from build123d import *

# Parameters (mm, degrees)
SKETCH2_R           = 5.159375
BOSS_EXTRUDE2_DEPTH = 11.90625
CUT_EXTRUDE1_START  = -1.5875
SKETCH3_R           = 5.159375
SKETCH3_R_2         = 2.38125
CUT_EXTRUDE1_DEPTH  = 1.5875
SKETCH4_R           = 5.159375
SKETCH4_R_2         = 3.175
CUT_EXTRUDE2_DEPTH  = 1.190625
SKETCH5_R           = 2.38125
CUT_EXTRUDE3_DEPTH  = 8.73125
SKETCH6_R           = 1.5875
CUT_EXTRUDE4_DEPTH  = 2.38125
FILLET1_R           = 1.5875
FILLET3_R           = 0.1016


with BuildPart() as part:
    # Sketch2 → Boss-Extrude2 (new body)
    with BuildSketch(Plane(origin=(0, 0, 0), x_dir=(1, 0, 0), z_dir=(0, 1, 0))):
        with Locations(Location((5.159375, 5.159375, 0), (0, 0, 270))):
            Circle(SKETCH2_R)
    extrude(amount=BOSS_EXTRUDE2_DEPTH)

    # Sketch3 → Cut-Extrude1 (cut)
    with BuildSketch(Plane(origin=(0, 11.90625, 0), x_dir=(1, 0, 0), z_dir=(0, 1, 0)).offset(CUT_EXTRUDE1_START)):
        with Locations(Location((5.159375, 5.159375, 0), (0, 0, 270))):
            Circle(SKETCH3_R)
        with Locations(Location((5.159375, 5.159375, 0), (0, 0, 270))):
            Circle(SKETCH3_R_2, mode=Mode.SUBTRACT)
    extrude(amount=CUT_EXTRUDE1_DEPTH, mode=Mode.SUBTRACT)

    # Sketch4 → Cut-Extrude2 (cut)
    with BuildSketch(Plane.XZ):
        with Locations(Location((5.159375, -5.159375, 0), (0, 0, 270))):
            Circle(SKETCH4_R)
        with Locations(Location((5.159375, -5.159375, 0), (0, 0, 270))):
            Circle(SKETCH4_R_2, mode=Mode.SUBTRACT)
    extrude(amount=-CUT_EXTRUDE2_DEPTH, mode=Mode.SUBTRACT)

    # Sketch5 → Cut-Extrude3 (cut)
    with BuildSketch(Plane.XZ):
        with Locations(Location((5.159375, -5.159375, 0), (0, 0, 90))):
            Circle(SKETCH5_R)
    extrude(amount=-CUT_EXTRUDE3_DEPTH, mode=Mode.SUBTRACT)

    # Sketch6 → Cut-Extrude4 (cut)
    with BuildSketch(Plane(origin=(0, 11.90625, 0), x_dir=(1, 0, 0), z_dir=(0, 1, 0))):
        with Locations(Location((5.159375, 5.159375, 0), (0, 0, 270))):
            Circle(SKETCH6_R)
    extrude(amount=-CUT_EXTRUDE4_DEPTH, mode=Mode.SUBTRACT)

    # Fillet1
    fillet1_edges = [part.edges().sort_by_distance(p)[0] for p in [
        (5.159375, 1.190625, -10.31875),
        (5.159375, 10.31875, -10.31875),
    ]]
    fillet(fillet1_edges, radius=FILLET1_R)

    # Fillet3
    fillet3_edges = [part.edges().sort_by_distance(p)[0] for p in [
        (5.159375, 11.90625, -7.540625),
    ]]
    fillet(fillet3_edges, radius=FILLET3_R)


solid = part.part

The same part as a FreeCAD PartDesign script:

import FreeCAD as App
import Part
import Sketcher
from FreeCAD import Vector
Q = App.Units.Quantity


def edges_at(feature, points):
    """Names of the edges that pass closest to the given points."""
    edges = feature.Shape.Edges
    near = lambda p: min(range(len(edges)), key=lambda i: edges[i].distToShape(Part.Vertex(*p))[0])
    return sorted({f"Edge{near(p) + 1}" for p in points})

doc = App.newDocument("Part")
body = doc.addObject("PartDesign::Body", "Body")

# Sketch on XZ plane
sketch1 = body.newObject("Sketcher::SketchObject", "Sketch")
sketch1.AttachmentSupport = (doc.getObject("XZ_Plane"), [""])
sketch1.MapMode = "FlatFace"
sketch1.addGeometry(Part.Circle(Vector(5.159375, -5.159375, 0), Vector(0, 0, 1), 5.159375), False)
sketch1.addConstraint(Sketcher.Constraint("Diameter", 0, Q("0.40625 in")))
sketch1.addConstraint(Sketcher.Constraint("DistanceX", -1, 1, 0, 3, Q("0.203125 in")))
sketch1.addConstraint(Sketcher.Constraint("DistanceY", 0, 3, -1, 1, Q("0.203125 in")))
pad1 = body.newObject("PartDesign::Pad", "Pad")
pad1.Profile = sketch1
pad1.Length = Q("0.46875 in")
pad1.Reversed = True

# Sketch on XZ plane
sketch2 = body.newObject("Sketcher::SketchObject", "Sketch001")
sketch2.AttachmentSupport = (doc.getObject("XZ_Plane"), [""])
sketch2.MapMode = "FlatFace"
sketch2.AttachmentOffset = App.Placement(Vector(0, 0, -0.40625 * 25.4), App.Rotation())
sketch2.addGeometry(Part.Circle(Vector(5.159375, -5.159375, 0), Vector(0, 0, 1), 5.159375), False)
sketch2.addGeometry(Part.Circle(Vector(5.159375, -5.159375, 0), Vector(0, 0, 1), 2.38125), False)
sketch2.addConstraint(Sketcher.Constraint("Coincident", 1, 3, 0, 3))
sketch2.addConstraint(Sketcher.Constraint("Diameter", 0, Q("0.40625 in")))
sketch2.addConstraint(Sketcher.Constraint("Diameter", 1, Q("0.1875 in")))
sketch2.addConstraint(Sketcher.Constraint("DistanceX", -1, 1, 0, 3, Q("0.203125 in")))
sketch2.addConstraint(Sketcher.Constraint("DistanceY", 0, 3, -1, 1, Q("0.203125 in")))
pocket1 = body.newObject("PartDesign::Pocket", "Pocket")
pocket1.Profile = sketch2
pocket1.Length = Q("0.0625 in")

# Sketch on XZ plane
sketch3 = body.newObject("Sketcher::SketchObject", "Sketch002")
sketch3.AttachmentSupport = (doc.getObject("XZ_Plane"), [""])
sketch3.MapMode = "FlatFace"
sketch3.addGeometry(Part.Circle(Vector(5.159375, -5.159375, 0), Vector(0, 0, 1), 5.159375), False)
sketch3.addGeometry(Part.Circle(Vector(5.159375, -5.159375, 0), Vector(0, 0, 1), 3.175), False)
sketch3.addConstraint(Sketcher.Constraint("Coincident", 1, 3, 0, 3))
sketch3.addConstraint(Sketcher.Constraint("Diameter", 1, Q("0.25 in")))
sketch3.addConstraint(Sketcher.Constraint("Diameter", 0, Q("0.40625 in")))
sketch3.addConstraint(Sketcher.Constraint("DistanceX", -1, 1, 0, 3, Q("0.203125 in")))
sketch3.addConstraint(Sketcher.Constraint("DistanceY", 0, 3, -1, 1, Q("0.203125 in")))
pocket2 = body.newObject("PartDesign::Pocket", "Pocket001")
pocket2.Profile = sketch3
pocket2.Length = Q("0.046875 in")

# Sketch on XZ plane
sketch4 = body.newObject("Sketcher::SketchObject", "Sketch003")
sketch4.AttachmentSupport = (doc.getObject("XZ_Plane"), [""])
sketch4.MapMode = "FlatFace"
sketch4.addGeometry(Part.Circle(Vector(5.159375, -5.159375, 0), Vector(0, 0, 1), 2.38125), False)
sketch4.addConstraint(Sketcher.Constraint("Diameter", 0, Q("0.1875 in")))
sketch4.addConstraint(Sketcher.Constraint("DistanceX", -1, 1, 0, 3, Q("0.203125 in")))
sketch4.addConstraint(Sketcher.Constraint("DistanceY", 0, 3, -1, 1, Q("0.203125 in")))
pocket3 = body.newObject("PartDesign::Pocket", "Pocket002")
pocket3.Profile = sketch4
pocket3.Length = Q("0.34375 in")

# Sketch on XZ plane
sketch5 = body.newObject("Sketcher::SketchObject", "Sketch004")
sketch5.AttachmentSupport = (doc.getObject("XZ_Plane"), [""])
sketch5.MapMode = "FlatFace"
sketch5.AttachmentOffset = App.Placement(Vector(0, 0, -0.46875 * 25.4), App.Rotation())
sketch5.addGeometry(Part.Circle(Vector(5.159375, -5.159375, 0), Vector(0, 0, 1), 1.5875), False)
sketch5.addConstraint(Sketcher.Constraint("Diameter", 0, Q("0.125 in")))
sketch5.addConstraint(Sketcher.Constraint("DistanceX", -1, 1, 0, 3, Q("0.203125 in")))
sketch5.addConstraint(Sketcher.Constraint("DistanceY", 0, 3, -1, 1, Q("0.203125 in")))
pocket4 = body.newObject("PartDesign::Pocket", "Pocket003")
pocket4.Profile = sketch5
pocket4.Length = Q("0.09375 in")
pocket4.Reversed = True
doc.recompute()

fillet = body.newObject("PartDesign::Fillet", "Fillet")
fillet.Base = (pocket4, edges_at(pocket4, [(5.159, 1.191, -10.319), (5.159, 10.319, -10.319)]))
fillet.Radius = Q("0.0625 in")
doc.recompute()

fillet2 = body.newObject("PartDesign::Fillet", "Fillet001")
fillet2.Base = (fillet, edges_at(fillet, [(5.159, 11.906, -7.541)]))
fillet2.Radius = Q("0.004 in")

doc.recompute()
